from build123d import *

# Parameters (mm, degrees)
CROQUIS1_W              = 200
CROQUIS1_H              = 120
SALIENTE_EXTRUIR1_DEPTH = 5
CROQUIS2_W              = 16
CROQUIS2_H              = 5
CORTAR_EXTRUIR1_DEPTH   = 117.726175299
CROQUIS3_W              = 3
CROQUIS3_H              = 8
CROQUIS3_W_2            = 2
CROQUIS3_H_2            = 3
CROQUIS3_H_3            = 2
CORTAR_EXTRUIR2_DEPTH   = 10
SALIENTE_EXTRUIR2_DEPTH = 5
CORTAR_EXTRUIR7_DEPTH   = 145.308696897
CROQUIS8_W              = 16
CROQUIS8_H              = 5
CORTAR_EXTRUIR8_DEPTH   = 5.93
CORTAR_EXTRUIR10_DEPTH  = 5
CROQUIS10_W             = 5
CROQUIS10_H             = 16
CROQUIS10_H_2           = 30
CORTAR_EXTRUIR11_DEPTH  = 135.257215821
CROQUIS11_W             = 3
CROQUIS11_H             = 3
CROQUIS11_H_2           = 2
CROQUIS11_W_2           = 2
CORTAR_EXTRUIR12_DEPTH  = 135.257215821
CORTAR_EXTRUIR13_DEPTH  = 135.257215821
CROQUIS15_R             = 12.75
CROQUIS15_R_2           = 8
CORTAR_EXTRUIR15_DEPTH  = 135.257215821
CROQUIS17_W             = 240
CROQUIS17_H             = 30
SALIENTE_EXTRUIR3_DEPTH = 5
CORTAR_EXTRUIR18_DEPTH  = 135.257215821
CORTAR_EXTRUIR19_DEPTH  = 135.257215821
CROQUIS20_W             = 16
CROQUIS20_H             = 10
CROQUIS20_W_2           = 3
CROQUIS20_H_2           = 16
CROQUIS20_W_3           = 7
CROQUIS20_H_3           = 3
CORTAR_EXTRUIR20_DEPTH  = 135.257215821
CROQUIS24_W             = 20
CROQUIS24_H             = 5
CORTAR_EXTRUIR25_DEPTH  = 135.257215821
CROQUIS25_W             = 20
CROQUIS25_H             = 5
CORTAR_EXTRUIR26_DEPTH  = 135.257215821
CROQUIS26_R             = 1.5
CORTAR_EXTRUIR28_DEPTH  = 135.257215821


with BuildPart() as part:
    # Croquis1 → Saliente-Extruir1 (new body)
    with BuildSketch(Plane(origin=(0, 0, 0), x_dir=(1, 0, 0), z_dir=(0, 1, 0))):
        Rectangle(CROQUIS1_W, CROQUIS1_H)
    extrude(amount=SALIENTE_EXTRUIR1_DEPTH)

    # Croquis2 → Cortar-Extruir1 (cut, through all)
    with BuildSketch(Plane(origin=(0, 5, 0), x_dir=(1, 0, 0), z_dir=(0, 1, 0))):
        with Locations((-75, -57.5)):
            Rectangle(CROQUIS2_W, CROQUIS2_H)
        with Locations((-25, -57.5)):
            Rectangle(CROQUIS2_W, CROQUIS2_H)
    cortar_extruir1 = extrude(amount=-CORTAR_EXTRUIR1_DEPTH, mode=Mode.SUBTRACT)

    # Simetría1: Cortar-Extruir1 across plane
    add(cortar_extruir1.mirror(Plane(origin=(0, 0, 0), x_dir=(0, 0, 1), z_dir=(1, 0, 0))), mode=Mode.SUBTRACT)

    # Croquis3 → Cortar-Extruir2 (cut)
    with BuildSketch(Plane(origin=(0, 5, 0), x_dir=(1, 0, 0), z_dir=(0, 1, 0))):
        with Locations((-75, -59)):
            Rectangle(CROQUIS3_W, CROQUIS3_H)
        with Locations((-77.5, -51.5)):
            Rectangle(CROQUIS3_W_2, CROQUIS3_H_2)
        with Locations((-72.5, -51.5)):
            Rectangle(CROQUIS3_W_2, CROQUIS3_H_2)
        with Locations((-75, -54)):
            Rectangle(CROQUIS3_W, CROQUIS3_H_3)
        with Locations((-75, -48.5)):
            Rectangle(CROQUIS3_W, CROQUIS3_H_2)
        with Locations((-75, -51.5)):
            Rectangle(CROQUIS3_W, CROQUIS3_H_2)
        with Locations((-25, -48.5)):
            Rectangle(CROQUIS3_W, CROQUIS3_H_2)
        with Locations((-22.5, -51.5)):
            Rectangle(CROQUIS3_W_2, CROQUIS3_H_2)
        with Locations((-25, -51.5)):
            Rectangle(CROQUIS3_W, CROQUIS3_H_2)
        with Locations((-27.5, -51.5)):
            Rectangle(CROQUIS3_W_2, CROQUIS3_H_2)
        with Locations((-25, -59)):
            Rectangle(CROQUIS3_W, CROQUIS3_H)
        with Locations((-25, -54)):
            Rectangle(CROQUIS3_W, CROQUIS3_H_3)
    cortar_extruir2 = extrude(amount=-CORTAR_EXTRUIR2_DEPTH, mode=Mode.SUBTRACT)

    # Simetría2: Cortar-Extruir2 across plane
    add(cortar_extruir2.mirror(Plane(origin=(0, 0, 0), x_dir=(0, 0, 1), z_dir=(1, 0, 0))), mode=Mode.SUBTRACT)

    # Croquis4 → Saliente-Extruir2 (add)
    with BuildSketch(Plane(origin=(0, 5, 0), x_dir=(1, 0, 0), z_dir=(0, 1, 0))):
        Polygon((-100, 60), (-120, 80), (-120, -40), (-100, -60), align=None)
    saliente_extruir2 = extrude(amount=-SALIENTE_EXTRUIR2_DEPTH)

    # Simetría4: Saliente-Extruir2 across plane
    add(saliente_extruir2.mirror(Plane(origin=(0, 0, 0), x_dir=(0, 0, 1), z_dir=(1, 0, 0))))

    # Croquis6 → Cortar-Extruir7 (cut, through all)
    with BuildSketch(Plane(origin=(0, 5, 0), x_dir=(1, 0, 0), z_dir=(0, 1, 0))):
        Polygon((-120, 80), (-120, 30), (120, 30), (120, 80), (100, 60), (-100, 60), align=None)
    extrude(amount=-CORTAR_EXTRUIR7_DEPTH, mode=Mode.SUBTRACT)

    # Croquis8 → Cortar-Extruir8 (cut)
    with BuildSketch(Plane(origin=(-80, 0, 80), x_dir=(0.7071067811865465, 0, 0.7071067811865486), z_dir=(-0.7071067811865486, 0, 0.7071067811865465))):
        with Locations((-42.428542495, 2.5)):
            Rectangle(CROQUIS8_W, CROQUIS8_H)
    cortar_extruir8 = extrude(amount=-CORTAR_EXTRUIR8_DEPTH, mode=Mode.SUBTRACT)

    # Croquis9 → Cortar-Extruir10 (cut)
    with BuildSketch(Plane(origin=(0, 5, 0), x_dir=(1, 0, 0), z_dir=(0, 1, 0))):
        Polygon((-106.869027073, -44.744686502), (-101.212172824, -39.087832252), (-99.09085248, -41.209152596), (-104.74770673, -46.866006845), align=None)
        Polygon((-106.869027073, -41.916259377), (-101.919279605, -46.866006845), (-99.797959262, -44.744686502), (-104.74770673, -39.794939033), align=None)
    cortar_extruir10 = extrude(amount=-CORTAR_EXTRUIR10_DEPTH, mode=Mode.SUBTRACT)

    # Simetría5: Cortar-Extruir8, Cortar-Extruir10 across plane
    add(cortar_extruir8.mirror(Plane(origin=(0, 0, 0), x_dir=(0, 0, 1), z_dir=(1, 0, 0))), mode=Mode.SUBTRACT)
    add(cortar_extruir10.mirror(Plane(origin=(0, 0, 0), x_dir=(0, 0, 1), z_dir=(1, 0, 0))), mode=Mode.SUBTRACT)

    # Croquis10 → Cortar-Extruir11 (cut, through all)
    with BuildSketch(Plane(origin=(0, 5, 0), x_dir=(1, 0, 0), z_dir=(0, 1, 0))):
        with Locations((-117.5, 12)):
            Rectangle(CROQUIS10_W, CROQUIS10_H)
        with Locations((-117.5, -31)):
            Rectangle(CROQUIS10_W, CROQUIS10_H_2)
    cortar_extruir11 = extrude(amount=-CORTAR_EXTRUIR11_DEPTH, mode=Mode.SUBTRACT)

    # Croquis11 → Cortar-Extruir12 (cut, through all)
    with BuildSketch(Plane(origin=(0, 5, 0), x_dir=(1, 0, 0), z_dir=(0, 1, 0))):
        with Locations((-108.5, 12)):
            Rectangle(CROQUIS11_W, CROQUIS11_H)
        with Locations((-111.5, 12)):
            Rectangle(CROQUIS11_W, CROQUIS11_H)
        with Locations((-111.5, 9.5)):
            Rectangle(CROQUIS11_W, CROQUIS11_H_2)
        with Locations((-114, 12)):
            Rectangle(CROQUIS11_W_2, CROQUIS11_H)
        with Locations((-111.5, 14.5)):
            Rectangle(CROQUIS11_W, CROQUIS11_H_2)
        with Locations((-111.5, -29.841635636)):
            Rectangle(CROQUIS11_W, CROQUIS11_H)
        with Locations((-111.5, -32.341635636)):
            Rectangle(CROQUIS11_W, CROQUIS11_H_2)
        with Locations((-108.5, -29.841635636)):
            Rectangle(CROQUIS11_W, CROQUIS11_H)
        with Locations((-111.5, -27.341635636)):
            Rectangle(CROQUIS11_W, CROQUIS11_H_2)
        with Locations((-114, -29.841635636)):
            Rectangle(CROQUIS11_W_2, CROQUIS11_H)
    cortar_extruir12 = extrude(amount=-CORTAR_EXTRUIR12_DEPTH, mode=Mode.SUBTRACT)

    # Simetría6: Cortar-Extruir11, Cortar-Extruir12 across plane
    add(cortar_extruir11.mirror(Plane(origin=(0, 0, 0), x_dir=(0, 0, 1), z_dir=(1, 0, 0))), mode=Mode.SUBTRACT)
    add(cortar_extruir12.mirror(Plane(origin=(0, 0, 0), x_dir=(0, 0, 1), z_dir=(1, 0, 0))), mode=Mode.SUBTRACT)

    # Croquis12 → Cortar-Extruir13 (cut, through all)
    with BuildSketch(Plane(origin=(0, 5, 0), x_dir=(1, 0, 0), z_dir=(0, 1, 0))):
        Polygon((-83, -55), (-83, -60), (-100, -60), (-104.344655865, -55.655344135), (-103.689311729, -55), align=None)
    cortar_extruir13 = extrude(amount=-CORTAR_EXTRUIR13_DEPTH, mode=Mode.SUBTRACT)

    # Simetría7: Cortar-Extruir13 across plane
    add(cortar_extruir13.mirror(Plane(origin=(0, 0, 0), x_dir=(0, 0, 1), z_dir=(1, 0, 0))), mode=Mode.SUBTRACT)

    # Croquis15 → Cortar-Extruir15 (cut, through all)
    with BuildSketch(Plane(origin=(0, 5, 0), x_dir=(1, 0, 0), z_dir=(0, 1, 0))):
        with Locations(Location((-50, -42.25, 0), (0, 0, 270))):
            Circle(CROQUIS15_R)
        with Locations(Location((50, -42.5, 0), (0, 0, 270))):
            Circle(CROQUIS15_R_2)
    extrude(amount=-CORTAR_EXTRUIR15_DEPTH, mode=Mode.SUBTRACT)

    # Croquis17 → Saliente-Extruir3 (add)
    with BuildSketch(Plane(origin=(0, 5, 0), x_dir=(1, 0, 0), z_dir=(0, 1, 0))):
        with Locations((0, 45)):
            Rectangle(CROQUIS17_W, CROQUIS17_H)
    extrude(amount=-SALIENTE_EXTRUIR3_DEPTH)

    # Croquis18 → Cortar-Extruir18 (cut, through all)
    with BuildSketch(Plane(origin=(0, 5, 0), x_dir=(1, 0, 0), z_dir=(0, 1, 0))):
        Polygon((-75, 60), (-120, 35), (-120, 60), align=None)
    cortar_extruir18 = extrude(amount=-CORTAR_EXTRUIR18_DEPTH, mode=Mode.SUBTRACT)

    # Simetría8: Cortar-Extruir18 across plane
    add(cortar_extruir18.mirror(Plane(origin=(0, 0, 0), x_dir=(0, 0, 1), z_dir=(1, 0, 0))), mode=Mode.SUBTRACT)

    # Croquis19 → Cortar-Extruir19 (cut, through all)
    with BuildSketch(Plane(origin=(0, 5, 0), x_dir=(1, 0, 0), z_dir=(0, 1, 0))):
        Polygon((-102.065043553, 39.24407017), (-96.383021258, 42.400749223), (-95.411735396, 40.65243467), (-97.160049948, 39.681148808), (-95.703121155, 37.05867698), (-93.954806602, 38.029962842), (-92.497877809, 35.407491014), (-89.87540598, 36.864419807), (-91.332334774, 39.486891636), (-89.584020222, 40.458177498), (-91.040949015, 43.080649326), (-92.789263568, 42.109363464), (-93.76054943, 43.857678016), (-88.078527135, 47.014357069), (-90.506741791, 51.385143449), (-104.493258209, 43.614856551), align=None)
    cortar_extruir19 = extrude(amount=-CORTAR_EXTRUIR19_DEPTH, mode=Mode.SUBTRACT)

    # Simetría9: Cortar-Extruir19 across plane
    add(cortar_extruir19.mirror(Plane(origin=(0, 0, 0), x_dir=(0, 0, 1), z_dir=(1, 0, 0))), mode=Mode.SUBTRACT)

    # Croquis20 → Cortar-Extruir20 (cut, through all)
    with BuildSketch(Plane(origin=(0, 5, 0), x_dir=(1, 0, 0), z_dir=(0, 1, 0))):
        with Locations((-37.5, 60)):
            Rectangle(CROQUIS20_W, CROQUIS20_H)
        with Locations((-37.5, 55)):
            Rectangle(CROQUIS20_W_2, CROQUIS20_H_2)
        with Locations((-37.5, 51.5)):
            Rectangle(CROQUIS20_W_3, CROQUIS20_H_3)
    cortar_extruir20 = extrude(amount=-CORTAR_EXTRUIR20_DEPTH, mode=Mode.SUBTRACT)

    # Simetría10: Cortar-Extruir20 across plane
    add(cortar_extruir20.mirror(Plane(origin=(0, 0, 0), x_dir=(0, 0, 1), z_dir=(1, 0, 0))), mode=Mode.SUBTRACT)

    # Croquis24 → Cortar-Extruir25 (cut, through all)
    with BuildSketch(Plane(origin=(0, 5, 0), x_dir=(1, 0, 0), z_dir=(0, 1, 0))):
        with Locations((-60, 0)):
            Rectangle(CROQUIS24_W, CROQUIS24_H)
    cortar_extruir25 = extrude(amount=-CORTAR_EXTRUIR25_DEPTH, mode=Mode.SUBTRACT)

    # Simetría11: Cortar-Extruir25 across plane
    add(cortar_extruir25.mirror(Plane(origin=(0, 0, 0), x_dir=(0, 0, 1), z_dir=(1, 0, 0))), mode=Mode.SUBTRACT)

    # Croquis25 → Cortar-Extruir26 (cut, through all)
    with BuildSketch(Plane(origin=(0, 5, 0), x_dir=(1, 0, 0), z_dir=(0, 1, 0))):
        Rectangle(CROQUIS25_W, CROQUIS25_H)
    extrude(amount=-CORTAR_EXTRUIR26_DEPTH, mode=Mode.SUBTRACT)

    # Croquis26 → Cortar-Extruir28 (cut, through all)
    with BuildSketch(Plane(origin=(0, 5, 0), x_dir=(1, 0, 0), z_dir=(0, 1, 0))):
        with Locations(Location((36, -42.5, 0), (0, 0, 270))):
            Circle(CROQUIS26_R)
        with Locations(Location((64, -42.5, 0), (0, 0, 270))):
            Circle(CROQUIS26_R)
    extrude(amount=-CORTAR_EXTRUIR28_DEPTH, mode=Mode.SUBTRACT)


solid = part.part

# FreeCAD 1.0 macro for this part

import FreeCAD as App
import Part
import Sketcher
from FreeCAD import Vector
Q = App.Units.Quantity


def add_polygon(sketch, points):
    """Adds a closed chain of lines whose ends are joined by coincident constraints."""
    first, n = sketch.GeometryCount, len(points)
    for a, b in zip(points, points[1:] + points[:1]):
        sketch.addGeometry(Part.LineSegment(App.Vector(*a, 0), App.Vector(*b, 0)), False)
    for i in range(n):
        sketch.addConstraint(Sketcher.Constraint("Coincident", first + i, 2, first + (i + 1) % n, 1))

doc = App.newDocument("Part")
body = doc.addObject("PartDesign::Body", "Body")

sketch1 = doc.addObject("Sketcher::SketchObject", "Sketch")
body.addObject(sketch1)
sketch1.AttachmentSupport = (doc.XZ_Plane, [""])
sketch1.MapMode = "FlatFace"
add_polygon(sketch1, [(-100, -60), (-100, 60), (100, 60), (100, -60)])
sketch1.addConstraint(Sketcher.Constraint("Vertical", 0))
sketch1.addConstraint(Sketcher.Constraint("Horizontal", 1))
sketch1.addConstraint(Sketcher.Constraint("Vertical", 2))
sketch1.addConstraint(Sketcher.Constraint("Horizontal", 3))
sketch1.addConstraint(Sketcher.Constraint("Symmetric", 0, 2, 2, 2, -1, 1))
sketch1.addConstraint(Sketcher.Constraint("DistanceX", 1, 1, 1, 2, Q("200 mm")))
sketch1.addConstraint(Sketcher.Constraint("DistanceY", 0, 1, 0, 2, Q("120 mm")))
pad1 = doc.addObject("PartDesign::Pad", "Pad")
body.addObject(pad1)
pad1.Profile = sketch1
pad1.Length = 5
pad1.Reversed = True

sketch2 = doc.addObject("Sketcher::SketchObject", "Sketch001")
body.addObject(sketch2)
sketch2.AttachmentSupport = (doc.XZ_Plane, [""])
sketch2.MapMode = "FlatFace"
sketch2.AttachmentOffset = App.Placement(Vector(0, 0, -5), App.Rotation())
add_polygon(sketch2, [(-83, 55), (-83, 60), (-67, 60), (-67, 55)])
add_polygon(sketch2, [(-33, 55), (-33, 60), (-17, 60), (-17, 55)])
sketch2.addConstraint(Sketcher.Constraint("Vertical", 0))
sketch2.addConstraint(Sketcher.Constraint("Horizontal", 1))
sketch2.addConstraint(Sketcher.Constraint("Vertical", 2))
sketch2.addConstraint(Sketcher.Constraint("Horizontal", 3))
sketch2.addConstraint(Sketcher.Constraint("Vertical", 4))
sketch2.addConstraint(Sketcher.Constraint("Horizontal", 5))
sketch2.addConstraint(Sketcher.Constraint("Vertical", 6))
sketch2.addConstraint(Sketcher.Constraint("Horizontal", 7))
sketch2.addConstraint(Sketcher.Constraint("Horizontal", 1, 2, 4, 2))
sketch2.addConstraint(Sketcher.Constraint("Horizontal", 3, 2, 6, 2))
sketch2.addConstraint(Sketcher.Constraint("Equal", 3, 5))
sketch2.addConstraint(Sketcher.Constraint("DistanceX", 1, 1, 1, 2, Q("16 mm")))
sketch2.addConstraint(Sketcher.Constraint("DistanceY", 0, 1, 0, 2, Q("5 mm")))
sketch2.addConstraint(Sketcher.Constraint("DistanceX", 0, 2, -1, 1, Q("83 mm")))
sketch2.addConstraint(Sketcher.Constraint("DistanceY", -1, 1, 0, 2, Q("60 mm")))
sketch2.addConstraint(Sketcher.Constraint("DistanceX", 4, 2, -1, 1, Q("33 mm")))
pocket1 = doc.addObject("PartDesign::Pocket", "Pocket")
body.addObject(pocket1)
pocket1.Profile = sketch2
pocket1.Type = "ThroughAll"
pocket1.Reversed = True
doc.recompute()

mirrored = doc.addObject("PartDesign::Mirrored", "Mirrored")
body.addObject(mirrored)
mirrored.Originals = [pocket1]
mirrored.MirrorPlane = (doc.YZ_Plane, [""])
body.Tip = mirrored

sketch3 = doc.addObject("Sketcher::SketchObject", "Sketch002")
body.addObject(sketch3)
sketch3.AttachmentSupport = (doc.XZ_Plane, [""])
sketch3.MapMode = "FlatFace"
sketch3.AttachmentOffset = App.Placement(Vector(0, 0, -5), App.Rotation())
add_polygon(sketch3, [(-76.5, 63), (-73.5, 63), (-73.5, 53), (-71.5, 53), (-71.5, 50), (-73.5, 50), (-73.5, 47), (-76.5, 47), (-76.5, 50), (-78.5, 50), (-78.5, 53), (-76.5, 53)])
add_polygon(sketch3, [(-26.5, 47), (-26.5, 50), (-28.5, 50), (-28.5, 53), (-26.5, 53), (-26.5, 63), (-23.5, 63), (-23.5, 53), (-21.5, 53), (-21.5, 50), (-23.5, 50), (-23.5, 47)])
sketch3.addConstraint(Sketcher.Constraint("Horizontal", 0))
sketch3.addConstraint(Sketcher.Constraint("Vertical", 1))
sketch3.addConstraint(Sketcher.Constraint("Horizontal", 2))
sketch3.addConstraint(Sketcher.Constraint("Vertical", 3))
sketch3.addConstraint(Sketcher.Constraint("Horizontal", 4))
sketch3.addConstraint(Sketcher.Constraint("Vertical", 5))
sketch3.addConstraint(Sketcher.Constraint("Horizontal", 6))
sketch3.addConstraint(Sketcher.Constraint("Vertical", 7))
sketch3.addConstraint(Sketcher.Constraint("Horizontal", 8))
sketch3.addConstraint(Sketcher.Constraint("Vertical", 9))
sketch3.addConstraint(Sketcher.Constraint("Horizontal", 10))
sketch3.addConstraint(Sketcher.Constraint("Vertical", 11))
sketch3.addConstraint(Sketcher.Constraint("Vertical", 12))
sketch3.addConstraint(Sketcher.Constraint("Horizontal", 13))
sketch3.addConstraint(Sketcher.Constraint("Vertical", 14))
sketch3.addConstraint(Sketcher.Constraint("Horizontal", 15))
sketch3.addConstraint(Sketcher.Constraint("Vertical", 16))
sketch3.addConstraint(Sketcher.Constraint("Horizontal", 17))
sketch3.addConstraint(Sketcher.Constraint("Vertical", 18))
sketch3.addConstraint(Sketcher.Constraint("Horizontal", 19))
sketch3.addConstraint(Sketcher.Constraint("Vertical", 20))
sketch3.addConstraint(Sketcher.Constraint("Horizontal", 21))
sketch3.addConstraint(Sketcher.Constraint("Vertical", 22))
sketch3.addConstraint(Sketcher.Constraint("Horizontal", 23))
sketch3.addConstraint(Sketcher.Constraint("Horizontal", 4, 2, 7, 2))
sketch3.addConstraint(Sketcher.Constraint("Horizontal", 2, 2, 9, 2))
sketch3.addConstraint(Sketcher.Constraint("Horizontal", 8, 2, 12, 2))
sketch3.addConstraint(Sketcher.Constraint("Horizontal", 10, 2, 14, 2))
sketch3.addConstraint(Sketcher.Constraint("Horizontal", 11, 2, 16, 2))
sketch3.addConstraint(Sketcher.Constraint("Horizontal", 15, 2, 18, 2))
sketch3.addConstraint(Sketcher.Constraint("Horizontal", 13, 2, 20, 2))
sketch3.addConstraint(Sketcher.Constraint("Horizontal", 6, 2, 22, 2))
sketch3.addConstraint(Sketcher.Constraint("Vertical", 1, 2, 4, 2))
sketch3.addConstraint(Sketcher.Constraint("Vertical", 7, 2, 10, 2))
sketch3.addConstraint(Sketcher.Constraint("Vertical", 12, 2, 15, 2))
sketch3.addConstraint(Sketcher.Constraint("Vertical", 18, 2, 21, 2))
sketch3.addConstraint(Sketcher.Constraint("Equal", 4, 8))
sketch3.addConstraint(Sketcher.Constraint("Equal", 10, 13))
sketch3.addConstraint(Sketcher.Constraint("Equal", 6, 17))
sketch3.addConstraint(Sketcher.Constraint("Equal", 15, 19))
sketch3.addConstraint(Sketcher.Constraint("Equal", 23, 3))
sketch3.addConstraint(Sketcher.Constraint("Equal", 3, 5))
sketch3.addConstraint(Sketcher.Constraint("DistanceX", 0, 1, 0, 2, Q("3 mm")))
sketch3.addConstraint(Sketcher.Constraint("DistanceX", 2, 1, 2, 2, Q("2 mm")))
sketch3.addConstraint(Sketcher.Constraint("DistanceY", 1, 2, 1, 1, Q("10 mm")))
sketch3.addConstraint(Sketcher.Constraint("DistanceY", -1, 1, 0, 2, Q("63 mm")))
sketch3.addConstraint(Sketcher.Constraint("DistanceX", 3, 2, 12, 2, Q("45 mm")))
sketch3.addConstraint(Sketcher.Constraint("DistanceX", 0, 2, -1, 1, Q("73.5 mm")))
pocket2 = doc.addObject("PartDesign::Pocket", "Pocket001")
body.addObject(pocket2)
pocket2.Profile = sketch3
pocket2.Length = 10
pocket2.Reversed = True
doc.recompute()

mirrored2 = doc.addObject("PartDesign::Mirrored", "Mirrored001")
body.addObject(mirrored2)
mirrored2.Originals = [pocket2]
mirrored2.MirrorPlane = (doc.YZ_Plane, [""])
body.Tip = mirrored2

sketch4 = doc.addObject("Sketcher::SketchObject", "Sketch003")
body.addObject(sketch4)
sketch4.AttachmentSupport = (doc.XZ_Plane, [""])
sketch4.MapMode = "FlatFace"
sketch4.AttachmentOffset = App.Placement(Vector(0, 0, -5), App.Rotation())
add_polygon(sketch4, [(-100, -60), (-120, -80), (-120, 40), (-100, 60)])
sketch4.addConstraint(Sketcher.Constraint("Vertical", 1))
sketch4.addConstraint(Sketcher.Constraint("Vertical", 3))
sketch4.addConstraint(Sketcher.Constraint("Parallel", 0, 2))
sketch4.addConstraint(Sketcher.Constraint("DistanceY", 1, 1, 1, 2, Q("120 mm")))
sketch4.addConstraint(Sketcher.Constraint("Angle", 0, Q("-135 deg")))
sketch4.addConstraint(Sketcher.Constraint("DistanceX", 0, 2, -1, 1, Q("120 mm")))
sketch4.addConstraint(Sketcher.Constraint("DistanceY", 0, 2, -1, 1, Q("80 mm")))
sketch4.addConstraint(Sketcher.Constraint("DistanceX", 2, 2, -1, 1, Q("100 mm")))
pad2 = doc.addObject("PartDesign::Pad", "Pad001")
body.addObject(pad2)
pad2.Profile = sketch4
pad2.Length = 5
doc.recompute()

mirrored3 = doc.addObject("PartDesign::Mirrored", "Mirrored002")
body.addObject(mirrored3)
mirrored3.Originals = [pad2]
mirrored3.MirrorPlane = (doc.YZ_Plane, [""])
body.Tip = mirrored3

sketch5 = doc.addObject("Sketcher::SketchObject", "Sketch004")
body.addObject(sketch5)
sketch5.AttachmentSupport = (doc.XZ_Plane, [""])
sketch5.MapMode = "FlatFace"
sketch5.AttachmentOffset = App.Placement(Vector(0, 0, -5), App.Rotation())
add_polygon(sketch5, [(-120, -80), (-120, -30), (120, -30), (120, -80), (100, -60), (-100, -60)])
sketch5.addConstraint(Sketcher.Constraint("Vertical", 0))
sketch5.addConstraint(Sketcher.Constraint("Horizontal", 1))
sketch5.addConstraint(Sketcher.Constraint("Vertical", 2))
sketch5.addConstraint(Sketcher.Constraint("Horizontal", 4))
sketch5.addConstraint(Sketcher.Constraint("Symmetric", 2, 2, 5, 2, -2))
sketch5.addConstraint(Sketcher.Constraint("Perpendicular", 3, 5))
sketch5.addConstraint(Sketcher.Constraint("Equal", 3, 5))
sketch5.addConstraint(Sketcher.Constraint("DistanceX", 1, 1, 1, 2, Q("240 mm")))
sketch5.addConstraint(Sketcher.Constraint("DistanceX", 4, 2, 4, 1, Q("200 mm")))
sketch5.addConstraint(Sketcher.Constraint("DistanceY", 0, 1, 0, 2, Q("50 mm")))
sketch5.addConstraint(Sketcher.Constraint("DistanceY", 0, 2, -1, 1, Q("30 mm")))
pocket3 = doc.addObject("PartDesign::Pocket", "Pocket002")
body.addObject(pocket3)
pocket3.Profile = sketch5
pocket3.Type = "ThroughAll"
pocket3.Reversed = True

sketch6 = doc.addObject("Sketcher::SketchObject", "Sketch005")
body.addObject(sketch6)
sketch6.Placement = App.Placement(Vector(-80, 0, 80), App.Rotation(Vector(0.707106781, 0, 0.707106781), Vector(0, 0.999999999, 0), Vector(-0.707106781, 0, 0.707106781), "ZXY"))
add_polygon(sketch6, [(-50.428542, 5), (-50.428542, 0), (-34.428542, 0), (-34.428542, 5)])
sketch6.addConstraint(Sketcher.Constraint("Vertical", 0))
sketch6.addConstraint(Sketcher.Constraint("Horizontal", 1))
sketch6.addConstraint(Sketcher.Constraint("Vertical", 2))
sketch6.addConstraint(Sketcher.Constraint("Horizontal", 3))
sketch6.addConstraint(Sketcher.Constraint("PointOnObject", 0, 2, -1))
sketch6.addConstraint(Sketcher.Constraint("DistanceX", 1, 1, 1, 2, Q("16 mm")))
sketch6.addConstraint(Sketcher.Constraint("DistanceY", 0, 2, 0, 1, Q("5 mm")))
sketch6.addConstraint(Sketcher.Constraint("DistanceX", 0, 2, -1, 1, Q("50.428542 mm")))
pocket4 = doc.addObject("PartDesign::Pocket", "Pocket003")
body.addObject(pocket4)
pocket4.Profile = sketch6
pocket4.Length = 5.93

sketch7 = doc.addObject("Sketcher::SketchObject", "Sketch006")
body.addObject(sketch7)
sketch7.AttachmentSupport = (doc.XZ_Plane, [""])
sketch7.MapMode = "FlatFace"
sketch7.AttachmentOffset = App.Placement(Vector(0, 0, -5), App.Rotation())
add_polygon(sketch7, [(-106.869027, 44.744687), (-104.747707, 46.866007), (-103.333493, 45.451793), (-101.91928, 46.866007), (-99.797959, 44.744687), (-101.212173, 43.330473), (-99.090852, 41.209153), (-101.212173, 39.087832), (-103.333493, 41.209153), (-104.747707, 39.794939), (-106.869027, 41.916259), (-105.454814, 43.330473)])
sketch7.addConstraint(Sketcher.Constraint("Perpendicular", 0, 1))
sketch7.addConstraint(Sketcher.Constraint("Perpendicular", 1, 2))
sketch7.addConstraint(Sketcher.Constraint("Perpendicular", 2, 3))
sketch7.addConstraint(Sketcher.Constraint("Perpendicular", 3, 4))
sketch7.addConstraint(Sketcher.Constraint("Perpendicular", 4, 5))
sketch7.addConstraint(Sketcher.Constraint("Perpendicular", 5, 6))
sketch7.addConstraint(Sketcher.Constraint("Perpendicular", 6, 7))
sketch7.addConstraint(Sketcher.Constraint("Perpendicular", 7, 8))
sketch7.addConstraint(Sketcher.Constraint("Perpendicular", 8, 9))
sketch7.addConstraint(Sketcher.Constraint("Perpendicular", 9, 10))
sketch7.addConstraint(Sketcher.Constraint("Perpendicular", 10, 11))
sketch7.addConstraint(Sketcher.Constraint("Horizontal", 0, 2, 2, 2))
sketch7.addConstraint(Sketcher.Constraint("Horizontal", 5, 2, 7, 2))
sketch7.addConstraint(Sketcher.Constraint("Horizontal", 4, 2, 10, 2))
sketch7.addConstraint(Sketcher.Constraint("Horizontal", 3, 2, 11, 2))
sketch7.addConstraint(Sketcher.Constraint("Vertical", 4, 2, 6, 2))
sketch7.addConstraint(Sketcher.Constraint("Vertical", 1, 2, 7, 2))
sketch7.addConstraint(Sketcher.Constraint("Vertical", 0, 2, 8, 2))
sketch7.addConstraint(Sketcher.Constraint("Vertical", 9, 2, 11, 2))
sketch7.addConstraint(Sketcher.Constraint("Equal", 1, 2))
sketch7.addConstraint(Sketcher.Constraint("Distance", 0, Q("3 mm")))
sketch7.addConstraint(Sketcher.Constraint("Distance", 1, Q("2 mm")))
sketch7.addConstraint(Sketcher.Constraint("DistanceX", 2, 2, -1, 1, Q("101.91928 mm")))
sketch7.addConstraint(Sketcher.Constraint("DistanceY", -1, 1, 8, 2, Q("39.794939 mm")))
pocket5 = doc.addObject("PartDesign::Pocket", "Pocket004")
body.addObject(pocket5)
pocket5.Profile = sketch7
pocket5.Length = 5
pocket5.Reversed = True
doc.recompute()

mirrored4 = doc.addObject("PartDesign::Mirrored", "Mirrored003")
body.addObject(mirrored4)
mirrored4.Originals = [pocket4, pocket5]
mirrored4.MirrorPlane = (doc.YZ_Plane, [""])
body.Tip = mirrored4

sketch8 = doc.addObject("Sketcher::SketchObject", "Sketch007")
body.addObject(sketch8)
sketch8.AttachmentSupport = (doc.XZ_Plane, [""])
sketch8.MapMode = "FlatFace"
sketch8.AttachmentOffset = App.Placement(Vector(0, 0, -5), App.Rotation())
add_polygon(sketch8, [(-120, -20), (-120, -4), (-115, -4), (-115, -20)])
add_polygon(sketch8, [(-120, 16), (-120, 46), (-115, 46), (-115, 16)])
sketch8.addConstraint(Sketcher.Constraint("Vertical", 0))
sketch8.addConstraint(Sketcher.Constraint("Horizontal", 1))
sketch8.addConstraint(Sketcher.Constraint("Vertical", 2))
sketch8.addConstraint(Sketcher.Constraint("Horizontal", 3))
sketch8.addConstraint(Sketcher.Constraint("Vertical", 4))
sketch8.addConstraint(Sketcher.Constraint("Horizontal", 5))
sketch8.addConstraint(Sketcher.Constraint("Vertical", 6))
sketch8.addConstraint(Sketcher.Constraint("Horizontal", 7))
sketch8.addConstraint(Sketcher.Constraint("Vertical", 3, 2, 4, 2))
sketch8.addConstraint(Sketcher.Constraint("Vertical", 2, 2, 5, 2))
sketch8.addConstraint(Sketcher.Constraint("DistanceX", 1, 1, 1, 2, Q("5 mm")))
sketch8.addConstraint(Sketcher.Constraint("DistanceY", 0, 1, 0, 2, Q("16 mm")))
sketch8.addConstraint(Sketcher.Constraint("DistanceY", 4, 1, 4, 2, Q("30 mm")))
sketch8.addConstraint(Sketcher.Constraint("DistanceX", 0, 2, -1, 1, Q("120 mm")))
sketch8.addConstraint(Sketcher.Constraint("DistanceY", 0, 2, -1, 1, Q("4 mm")))
sketch8.addConstraint(Sketcher.Constraint("DistanceY", -1, 1, 4, 2, Q("46 mm")))
pocket6 = doc.addObject("PartDesign::Pocket", "Pocket005")
body.addObject(pocket6)
pocket6.Profile = sketch8
pocket6.Type = "ThroughAll"
pocket6.Reversed = True

sketch9 = doc.addObject("Sketcher::SketchObject", "Sketch008")
body.addObject(sketch9)
sketch9.AttachmentSupport = (doc.XZ_Plane, [""])
sketch9.MapMode = "FlatFace"
sketch9.AttachmentOffset = App.Placement(Vector(0, 0, -5), App.Rotation())
add_polygon(sketch9, [(-107, -10.5), (-107, -13.5), (-110, -13.5), (-110, -15.5), (-113, -15.5), (-113, -13.5), (-115, -13.5), (-115, -10.5), (-113, -10.5), (-113, -8.5), (-110, -8.5), (-110, -10.5)])
add_polygon(sketch9, [(-113, 33.341636), (-110, 33.341636), (-110, 31.341636), (-107, 31.341636), (-107, 28.341636), (-110, 28.341636), (-110, 26.341636), (-113, 26.341636), (-113, 28.341636), (-115, 28.341636), (-115, 31.341636), (-113, 31.341636)])
sketch9.addConstraint(Sketcher.Constraint("Vertical", 0))
sketch9.addConstraint(Sketcher.Constraint("Horizontal", 1))
sketch9.addConstraint(Sketcher.Constraint("Vertical", 2))
sketch9.addConstraint(Sketcher.Constraint("Horizontal", 3))
sketch9.addConstraint(Sketcher.Constraint("Vertical", 4))
sketch9.addConstraint(Sketcher.Constraint("Horizontal", 5))
sketch9.addConstraint(Sketcher.Constraint("Vertical", 6))
sketch9.addConstraint(Sketcher.Constraint("Horizontal", 7))
sketch9.addConstraint(Sketcher.Constraint("Vertical", 8))
sketch9.addConstraint(Sketcher.Constraint("Horizontal", 9))
sketch9.addConstraint(Sketcher.Constraint("Vertical", 10))
sketch9.addConstraint(Sketcher.Constraint("Horizontal", 11))
sketch9.addConstraint(Sketcher.Constraint("Horizontal", 12))
sketch9.addConstraint(Sketcher.Constraint("Vertical", 13))
sketch9.addConstraint(Sketcher.Constraint("Horizontal", 14))
sketch9.addConstraint(Sketcher.Constraint("Vertical", 15))
sketch9.addConstraint(Sketcher.Constraint("Horizontal", 16))
sketch9.addConstraint(Sketcher.Constraint("Vertical", 17))
sketch9.addConstraint(Sketcher.Constraint("Horizontal", 18))
sketch9.addConstraint(Sketcher.Constraint("Vertical", 19))
sketch9.addConstraint(Sketcher.Constraint("Horizontal", 20))
sketch9.addConstraint(Sketcher.Constraint("Vertical", 21))
sketch9.addConstraint(Sketcher.Constraint("Horizontal", 22))
sketch9.addConstraint(Sketcher.Constraint("Vertical", 23))
sketch9.addConstraint(Sketcher.Constraint("Horizontal", 1, 2, 4, 2))
sketch9.addConstraint(Sketcher.Constraint("Horizontal", 7, 2, 10, 2))
sketch9.addConstraint(Sketcher.Constraint("Horizontal", 16, 2, 19, 2))
sketch9.addConstraint(Sketcher.Constraint("Horizontal", 14, 2, 21, 2))
sketch9.addConstraint(Sketcher.Constraint("Vertical", 4, 2, 7, 2))
sketch9.addConstraint(Sketcher.Constraint("Vertical", 2, 2, 9, 2))
sketch9.addConstraint(Sketcher.Constraint("Vertical", 10, 2, 12, 2))
sketch9.addConstraint(Sketcher.Constraint("Vertical", 11, 2, 14, 2))
sketch9.addConstraint(Sketcher.Constraint("Vertical", 13, 2, 16, 2))
sketch9.addConstraint(Sketcher.Constraint("Vertical", 8, 2, 18, 2))
sketch9.addConstraint(Sketcher.Constraint("Vertical", 6, 2, 20, 2))
sketch9.addConstraint(Sketcher.Constraint("Vertical", 19, 2, 22, 2))
sketch9.addConstraint(Sketcher.Constraint("Equal", 1, 3))
sketch9.addConstraint(Sketcher.Constraint("Equal", 18, 0))
sketch9.addConstraint(Sketcher.Constraint("Equal", 22, 2))
sketch9.addConstraint(Sketcher.Constraint("Equal", 4, 8))
sketch9.addConstraint(Sketcher.Constraint("Equal", 10, 13))
sketch9.addConstraint(Sketcher.Constraint("Equal", 6, 15))
sketch9.addConstraint(Sketcher.Constraint("Equal", 13, 17))
sketch9.addConstraint(Sketcher.Constraint("DistanceX", 1, 2, 1, 1, Q("3 mm")))
sketch9.addConstraint(Sketcher.Constraint("DistanceX", 5, 2, 5, 1, Q("2 mm")))
sketch9.addConstraint(Sketcher.Constraint("DistanceX", 0, 2, -1, 1, Q("107 mm")))
sketch9.addConstraint(Sketcher.Constraint("DistanceY", 0, 2, -1, 1, Q("13.5 mm")))
sketch9.addConstraint(Sketcher.Constraint("DistanceY", -1, 1, 12, 2, Q("33.341636 mm")))
pocket7 = doc.addObject("PartDesign::Pocket", "Pocket006")
body.addObject(pocket7)
pocket7.Profile = sketch9
pocket7.Type = "ThroughAll"
pocket7.Reversed = True
doc.recompute()

mirrored5 = doc.addObject("PartDesign::Mirrored", "Mirrored004")
body.addObject(mirrored5)
mirrored5.Originals = [pocket6, pocket7]
mirrored5.MirrorPlane = (doc.YZ_Plane, [""])
body.Tip = mirrored5

sketch10 = doc.addObject("Sketcher::SketchObject", "Sketch009")
body.addObject(sketch10)
sketch10.AttachmentSupport = (doc.XZ_Plane, [""])
sketch10.MapMode = "FlatFace"
sketch10.AttachmentOffset = App.Placement(Vector(0, 0, -5), App.Rotation())
add_polygon(sketch10, [(-83, 60), (-83, 55), (-103.689312, 55), (-104.344656, 55.655344), (-100, 60)])
sketch10.addConstraint(Sketcher.Constraint("Vertical", 0))
sketch10.addConstraint(Sketcher.Constraint("Horizontal", 1))
sketch10.addConstraint(Sketcher.Constraint("Horizontal", 4))
sketch10.addConstraint(Sketcher.Constraint("Perpendicular", 2, 3))
sketch10.addConstraint(Sketcher.Constraint("DistanceX", 4, 1, 4, 2, Q("17 mm")))
sketch10.addConstraint(Sketcher.Constraint("DistanceY", 0, 2, 0, 1, Q("5 mm")))
sketch10.addConstraint(Sketcher.Constraint("Angle", 2, Q("135 deg")))
sketch10.addConstraint(Sketcher.Constraint("DistanceX", 0, 2, -1, 1, Q("83 mm")))
sketch10.addConstraint(Sketcher.Constraint("DistanceY", -1, 1, 0, 2, Q("55 mm")))
sketch10.addConstraint(Sketcher.Constraint("DistanceX", 1, 2, 1, 1, Q("20.689312 mm")))
pocket8 = doc.addObject("PartDesign::Pocket", "Pocket007")
body.addObject(pocket8)
pocket8.Profile = sketch10
pocket8.Type = "ThroughAll"
pocket8.Reversed = True
doc.recompute()

mirrored6 = doc.addObject("PartDesign::Mirrored", "Mirrored005")
body.addObject(mirrored6)
mirrored6.Originals = [pocket8]
mirrored6.MirrorPlane = (doc.YZ_Plane, [""])
body.Tip = mirrored6

sketch11 = doc.addObject("Sketcher::SketchObject", "Sketch010")
body.addObject(sketch11)
sketch11.AttachmentSupport = (doc.XZ_Plane, [""])
sketch11.MapMode = "FlatFace"
sketch11.AttachmentOffset = App.Placement(Vector(0, 0, -5), App.Rotation())
sketch11.addGeometry(Part.Circle(Vector(-50, 42.25, 0), Vector(0, 0, 1), 12.75), False)
sketch11.addGeometry(Part.Circle(Vector(50, 42.5, 0), Vector(0, 0, 1), 8), False)
sketch11.addConstraint(Sketcher.Constraint("Diameter", 1, Q("16 mm")))
sketch11.addConstraint(Sketcher.Constraint("Diameter", 0, Q("25.5 mm")))
sketch11.addConstraint(Sketcher.Constraint("DistanceX", 0, 3, -1, 1, Q("50 mm")))
sketch11.addConstraint(Sketcher.Constraint("DistanceX", -1, 1, 1, 3, Q("50 mm")))
sketch11.addConstraint(Sketcher.Constraint("DistanceY", -1, 1, 1, 3, Q("42.5 mm")))
sketch11.addConstraint(Sketcher.Constraint("DistanceY", -1, 1, 0, 3, Q("42.25 mm")))
pocket9 = doc.addObject("PartDesign::Pocket", "Pocket008")
body.addObject(pocket9)
pocket9.Profile = sketch11
pocket9.Type = "ThroughAll"
pocket9.Reversed = True

sketch12 = doc.addObject("Sketcher::SketchObject", "Sketch011")
body.addObject(sketch12)
sketch12.AttachmentSupport = (doc.XZ_Plane, [""])
sketch12.MapMode = "FlatFace"
sketch12.AttachmentOffset = App.Placement(Vector(0, 0, -5), App.Rotation())
add_polygon(sketch12, [(-120, -60), (-120, -30), (120, -30), (120, -60)])
sketch12.addConstraint(Sketcher.Constraint("Vertical", 0))
sketch12.addConstraint(Sketcher.Constraint("Horizontal", 1))
sketch12.addConstraint(Sketcher.Constraint("Vertical", 2))
sketch12.addConstraint(Sketcher.Constraint("Horizontal", 3))
sketch12.addConstraint(Sketcher.Constraint("DistanceX", 1, 1, 1, 2, Q("240 mm")))
sketch12.addConstraint(Sketcher.Constraint("DistanceY", 0, 1, 0, 2, Q("30 mm")))
sketch12.addConstraint(Sketcher.Constraint("DistanceX", 0, 2, -1, 1, Q("120 mm")))
sketch12.addConstraint(Sketcher.Constraint("DistanceY", 0, 2, -1, 1, Q("30 mm")))
pad3 = doc.addObject("PartDesign::Pad", "Pad002")
body.addObject(pad3)
pad3.Profile = sketch12
pad3.Length = 5

sketch13 = doc.addObject("Sketcher::SketchObject", "Sketch012")
body.addObject(sketch13)
sketch13.AttachmentSupport = (doc.XZ_Plane, [""])
sketch13.MapMode = "FlatFace"
sketch13.AttachmentOffset = App.Placement(Vector(0, 0, -5), App.Rotation())
add_polygon(sketch13, [(-120, -35), (-75, -60), (-120, -60)])
sketch13.addConstraint(Sketcher.Constraint("Horizontal", 1))
sketch13.addConstraint(Sketcher.Constraint("Vertical", 2))
sketch13.addConstraint(Sketcher.Constraint("DistanceX", 1, 2, 1, 1, Q("45 mm")))
sketch13.addConstraint(Sketcher.Constraint("DistanceY", 2, 1, 2, 2, Q("25 mm")))
sketch13.addConstraint(Sketcher.Constraint("DistanceX", 0, 2, -1, 1, Q("75 mm")))
sketch13.addConstraint(Sketcher.Constraint("DistanceY", 0, 2, -1, 1, Q("60 mm")))
pocket10 = doc.addObject("PartDesign::Pocket", "Pocket009")
body.addObject(pocket10)
pocket10.Profile = sketch13
pocket10.Type = "ThroughAll"
pocket10.Reversed = True
doc.recompute()

mirrored7 = doc.addObject("PartDesign::Mirrored", "Mirrored006")
body.addObject(mirrored7)
mirrored7.Originals = [pocket10]
mirrored7.MirrorPlane = (doc.YZ_Plane, [""])
body.Tip = mirrored7

sketch14 = doc.addObject("Sketcher::SketchObject", "Sketch013")
body.addObject(sketch14)
sketch14.AttachmentSupport = (doc.XZ_Plane, [""])
sketch14.MapMode = "FlatFace"
sketch14.AttachmentOffset = App.Placement(Vector(0, 0, -5), App.Rotation())
add_polygon(sketch14, [(-102.065044, -39.24407), (-96.383021, -42.400749), (-95.411735, -40.652435), (-97.16005, -39.681149), (-95.703121, -37.058677), (-93.954807, -38.029963), (-92.497878, -35.407491), (-89.875406, -36.86442), (-91.332335, -39.486892), (-89.58402, -40.458177), (-91.040949, -43.080649), (-92.789264, -42.109363), (-93.760549, -43.857678), (-88.078527, -47.014357), (-90.506742, -51.385143), (-104.493258, -43.614857)])
sketch14.addConstraint(Sketcher.Constraint("Perpendicular", 0, 1))
sketch14.addConstraint(Sketcher.Constraint("Perpendicular", 1, 2))
sketch14.addConstraint(Sketcher.Constraint("Perpendicular", 2, 3))
sketch14.addConstraint(Sketcher.Constraint("Perpendicular", 3, 4))
sketch14.addConstraint(Sketcher.Constraint("Perpendicular", 4, 5))
sketch14.addConstraint(Sketcher.Constraint("Perpendicular", 5, 6))
sketch14.addConstraint(Sketcher.Constraint("Perpendicular", 6, 7))
sketch14.addConstraint(Sketcher.Constraint("Perpendicular", 7, 8))
sketch14.addConstraint(Sketcher.Constraint("Perpendicular", 8, 9))
sketch14.addConstraint(Sketcher.Constraint("Perpendicular", 9, 10))
sketch14.addConstraint(Sketcher.Constraint("Perpendicular", 10, 11))
sketch14.addConstraint(Sketcher.Constraint("Perpendicular", 11, 12))
sketch14.addConstraint(Sketcher.Constraint("Perpendicular", 12, 13))
sketch14.addConstraint(Sketcher.Constraint("Perpendicular", 13, 14))
sketch14.addConstraint(Sketcher.Constraint("Perpendicular", 14, 15))
sketch14.addConstraint(Sketcher.Constraint("Equal", 1, 2))
sketch14.addConstraint(Sketcher.Constraint("Equal", 2, 4))
sketch14.addConstraint(Sketcher.Constraint("Equal", 3, 5))
sketch14.addConstraint(Sketcher.Constraint("Equal", 5, 6))
sketch14.addConstraint(Sketcher.Constraint("Equal", 6, 7))
sketch14.addConstraint(Sketcher.Constraint("Equal", 4, 8))
sketch14.addConstraint(Sketcher.Constraint("Equal", 7, 9))
sketch14.addConstraint(Sketcher.Constraint("Equal", 8, 10))
sketch14.addConstraint(Sketcher.Constraint("Equal", 10, 11))
sketch14.addConstraint(Sketcher.Constraint("Equal", 0, 12))
sketch14.addConstraint(Sketcher.Constraint("Distance", 1, Q("2 mm")))
sketch14.addConstraint(Sketcher.Constraint("Distance", 3, Q("3 mm")))
sketch14.addConstraint(Sketcher.Constraint("Distance", 13, Q("5 mm")))
sketch14.addConstraint(Sketcher.Constraint("Distance", 14, Q("16 mm")))
sketch14.addConstraint(Sketcher.Constraint("DistanceY", 0, 2, 2, 2, Q("2.7196 mm")))
sketch14.addConstraint(Sketcher.Constraint("DistanceX", 0, 2, -1, 1, Q("96.383021 mm")))
sketch14.addConstraint(Sketcher.Constraint("DistanceY", 0, 2, -1, 1, Q("42.400749 mm")))
pocket11 = doc.addObject("PartDesign::Pocket", "Pocket010")
body.addObject(pocket11)
pocket11.Profile = sketch14
pocket11.Type = "ThroughAll"
pocket11.Reversed = True
doc.recompute()

mirrored8 = doc.addObject("PartDesign::Mirrored", "Mirrored007")
body.addObject(mirrored8)
mirrored8.Originals = [pocket11]
mirrored8.MirrorPlane = (doc.YZ_Plane, [""])
body.Tip = mirrored8

sketch15 = doc.addObject("Sketcher::SketchObject", "Sketch014")
body.addObject(sketch15)
sketch15.AttachmentSupport = (doc.XZ_Plane, [""])
sketch15.MapMode = "FlatFace"
sketch15.AttachmentOffset = App.Placement(Vector(0, 0, -5), App.Rotation())
add_polygon(sketch15, [(-45.5, -65), (-45.5, -55), (-39, -55), (-39, -53), (-41, -53), (-41, -50), (-39, -50), (-39, -47), (-36, -47), (-36, -50), (-34, -50), (-34, -53), (-36, -53), (-36, -55), (-29.5, -55), (-29.5, -65)])
sketch15.addConstraint(Sketcher.Constraint("Vertical", 0))
sketch15.addConstraint(Sketcher.Constraint("Horizontal", 1))
sketch15.addConstraint(Sketcher.Constraint("Vertical", 2))
sketch15.addConstraint(Sketcher.Constraint("Horizontal", 3))
sketch15.addConstraint(Sketcher.Constraint("Vertical", 4))
sketch15.addConstraint(Sketcher.Constraint("Horizontal", 5))
sketch15.addConstraint(Sketcher.Constraint("Vertical", 6))
sketch15.addConstraint(Sketcher.Constraint("Horizontal", 7))
sketch15.addConstraint(Sketcher.Constraint("Vertical", 8))
sketch15.addConstraint(Sketcher.Constraint("Horizontal", 9))
sketch15.addConstraint(Sketcher.Constraint("Vertical", 10))
sketch15.addConstraint(Sketcher.Constraint("Horizontal", 11))
sketch15.addConstraint(Sketcher.Constraint("Vertical", 12))
sketch15.addConstraint(Sketcher.Constraint("Horizontal", 13))
sketch15.addConstraint(Sketcher.Constraint("Vertical", 14))
sketch15.addConstraint(Sketcher.Constraint("Horizontal", 15))
sketch15.addConstraint(Sketcher.Constraint("Horizontal", 5, 2, 8, 2))
sketch15.addConstraint(Sketcher.Constraint("Horizontal", 3, 2, 10, 2))
sketch15.addConstraint(Sketcher.Constraint("Horizontal", 1, 2, 12, 2))
sketch15.addConstraint(Sketcher.Constraint("Vertical", 2, 2, 5, 2))
sketch15.addConstraint(Sketcher.Constraint("Vertical", 8, 2, 11, 2))
sketch15.addConstraint(Sketcher.Constraint("Equal", 5, 9))
sketch15.addConstraint(Sketcher.Constraint("Equal", 1, 13))
sketch15.addConstraint(Sketcher.Constraint("Equal", 11, 2))
sketch15.addConstraint(Sketcher.Constraint("Equal", 7, 4))
sketch15.addConstraint(Sketcher.Constraint("Equal", 4, 6))
sketch15.addConstraint(Sketcher.Constraint("DistanceX", 3, 2, 3, 1, Q("2 mm")))
sketch15.addConstraint(Sketcher.Constraint("DistanceX", 7, 1, 7, 2, Q("3 mm")))
sketch15.addConstraint(Sketcher.Constraint("DistanceX", 15, 2, 15, 1, Q("16 mm")))
sketch15.addConstraint(Sketcher.Constraint("DistanceY", 0, 1, 0, 2, Q("10 mm")))
sketch15.addConstraint(Sketcher.Constraint("DistanceY", 0, 2, -1, 1, Q("55 mm")))
sketch15.addConstraint(Sketcher.Constraint("DistanceX", 1, 2, -1, 1, Q("39 mm")))
pocket12 = doc.addObject("PartDesign::Pocket", "Pocket011")
body.addObject(pocket12)
pocket12.Profile = sketch15
pocket12.Type = "ThroughAll"
pocket12.Reversed = True
doc.recompute()

mirrored9 = doc.addObject("PartDesign::Mirrored", "Mirrored008")
body.addObject(mirrored9)
mirrored9.Originals = [pocket12]
mirrored9.MirrorPlane = (doc.YZ_Plane, [""])
body.Tip = mirrored9

sketch16 = doc.addObject("Sketcher::SketchObject", "Sketch015")
body.addObject(sketch16)
sketch16.AttachmentSupport = (doc.XZ_Plane, [""])
sketch16.MapMode = "FlatFace"
sketch16.AttachmentOffset = App.Placement(Vector(0, 0, -5), App.Rotation())
add_polygon(sketch16, [(-70, -2.5), (-70, 2.5), (-50, 2.5), (-50, -2.5)])
sketch16.addConstraint(Sketcher.Constraint("Vertical", 0))
sketch16.addConstraint(Sketcher.Constraint("Horizontal", 1))
sketch16.addConstraint(Sketcher.Constraint("Vertical", 2))
sketch16.addConstraint(Sketcher.Constraint("Horizontal", 3))
sketch16.addConstraint(Sketcher.Constraint("DistanceX", 1, 1, 1, 2, Q("20 mm")))
sketch16.addConstraint(Sketcher.Constraint("DistanceY", 0, 1, 0, 2, Q("5 mm")))
sketch16.addConstraint(Sketcher.Constraint("DistanceX", 0, 2, -1, 1, Q("70 mm")))
sketch16.addConstraint(Sketcher.Constraint("DistanceY", -1, 1, 0, 2, Q("2.5 mm")))
pocket13 = doc.addObject("PartDesign::Pocket", "Pocket012")
body.addObject(pocket13)
pocket13.Profile = sketch16
pocket13.Type = "ThroughAll"
pocket13.Reversed = True
doc.recompute()

mirrored10 = doc.addObject("PartDesign::Mirrored", "Mirrored009")
body.addObject(mirrored10)
mirrored10.Originals = [pocket13]
mirrored10.MirrorPlane = (doc.YZ_Plane, [""])
body.Tip = mirrored10

sketch17 = doc.addObject("Sketcher::SketchObject", "Sketch016")
body.addObject(sketch17)
sketch17.AttachmentSupport = (doc.XZ_Plane, [""])
sketch17.MapMode = "FlatFace"
sketch17.AttachmentOffset = App.Placement(Vector(0, 0, -5), App.Rotation())
add_polygon(sketch17, [(-10, -2.5), (-10, 2.5), (10, 2.5), (10, -2.5)])
sketch17.addConstraint(Sketcher.Constraint("Vertical", 0))
sketch17.addConstraint(Sketcher.Constraint("Horizontal", 1))
sketch17.addConstraint(Sketcher.Constraint("Vertical", 2))
sketch17.addConstraint(Sketcher.Constraint("Horizontal", 3))
sketch17.addConstraint(Sketcher.Constraint("Symmetric", 0, 2, 2, 2, -1, 1))
sketch17.addConstraint(Sketcher.Constraint("DistanceX", 1, 1, 1, 2, Q("20 mm")))
sketch17.addConstraint(Sketcher.Constraint("DistanceY", 0, 1, 0, 2, Q("5 mm")))
pocket14 = doc.addObject("PartDesign::Pocket", "Pocket013")
body.addObject(pocket14)
pocket14.Profile = sketch17
pocket14.Type = "ThroughAll"
pocket14.Reversed = True

sketch18 = doc.addObject("Sketcher::SketchObject", "Sketch017")
body.addObject(sketch18)
sketch18.AttachmentSupport = (doc.XZ_Plane, [""])
sketch18.MapMode = "FlatFace"
sketch18.AttachmentOffset = App.Placement(Vector(0, 0, -5), App.Rotation())
sketch18.addGeometry(Part.Circle(Vector(36, 42.5, 0), Vector(0, 0, 1), 1.5), False)
sketch18.addGeometry(Part.Circle(Vector(64, 42.5, 0), Vector(0, 0, 1), 1.5), False)
sketch18.addConstraint(Sketcher.Constraint("Equal", 0, 1))
sketch18.addConstraint(Sketcher.Constraint("Horizontal", 0, 3, 1, 3))
sketch18.addConstraint(Sketcher.Constraint("Diameter", 0, Q("3 mm")))
sketch18.addConstraint(Sketcher.Constraint("DistanceX", -1, 1, 0, 3, Q("36 mm")))
sketch18.addConstraint(Sketcher.Constraint("DistanceX", -1, 1, 1, 3, Q("64 mm")))
sketch18.addConstraint(Sketcher.Constraint("DistanceY", -1, 1, 0, 3, Q("42.5 mm")))
pocket15 = doc.addObject("PartDesign::Pocket", "Pocket014")
body.addObject(pocket15)
pocket15.Profile = sketch18
pocket15.Type = "ThroughAll"
pocket15.Reversed = True

doc.recompute()
